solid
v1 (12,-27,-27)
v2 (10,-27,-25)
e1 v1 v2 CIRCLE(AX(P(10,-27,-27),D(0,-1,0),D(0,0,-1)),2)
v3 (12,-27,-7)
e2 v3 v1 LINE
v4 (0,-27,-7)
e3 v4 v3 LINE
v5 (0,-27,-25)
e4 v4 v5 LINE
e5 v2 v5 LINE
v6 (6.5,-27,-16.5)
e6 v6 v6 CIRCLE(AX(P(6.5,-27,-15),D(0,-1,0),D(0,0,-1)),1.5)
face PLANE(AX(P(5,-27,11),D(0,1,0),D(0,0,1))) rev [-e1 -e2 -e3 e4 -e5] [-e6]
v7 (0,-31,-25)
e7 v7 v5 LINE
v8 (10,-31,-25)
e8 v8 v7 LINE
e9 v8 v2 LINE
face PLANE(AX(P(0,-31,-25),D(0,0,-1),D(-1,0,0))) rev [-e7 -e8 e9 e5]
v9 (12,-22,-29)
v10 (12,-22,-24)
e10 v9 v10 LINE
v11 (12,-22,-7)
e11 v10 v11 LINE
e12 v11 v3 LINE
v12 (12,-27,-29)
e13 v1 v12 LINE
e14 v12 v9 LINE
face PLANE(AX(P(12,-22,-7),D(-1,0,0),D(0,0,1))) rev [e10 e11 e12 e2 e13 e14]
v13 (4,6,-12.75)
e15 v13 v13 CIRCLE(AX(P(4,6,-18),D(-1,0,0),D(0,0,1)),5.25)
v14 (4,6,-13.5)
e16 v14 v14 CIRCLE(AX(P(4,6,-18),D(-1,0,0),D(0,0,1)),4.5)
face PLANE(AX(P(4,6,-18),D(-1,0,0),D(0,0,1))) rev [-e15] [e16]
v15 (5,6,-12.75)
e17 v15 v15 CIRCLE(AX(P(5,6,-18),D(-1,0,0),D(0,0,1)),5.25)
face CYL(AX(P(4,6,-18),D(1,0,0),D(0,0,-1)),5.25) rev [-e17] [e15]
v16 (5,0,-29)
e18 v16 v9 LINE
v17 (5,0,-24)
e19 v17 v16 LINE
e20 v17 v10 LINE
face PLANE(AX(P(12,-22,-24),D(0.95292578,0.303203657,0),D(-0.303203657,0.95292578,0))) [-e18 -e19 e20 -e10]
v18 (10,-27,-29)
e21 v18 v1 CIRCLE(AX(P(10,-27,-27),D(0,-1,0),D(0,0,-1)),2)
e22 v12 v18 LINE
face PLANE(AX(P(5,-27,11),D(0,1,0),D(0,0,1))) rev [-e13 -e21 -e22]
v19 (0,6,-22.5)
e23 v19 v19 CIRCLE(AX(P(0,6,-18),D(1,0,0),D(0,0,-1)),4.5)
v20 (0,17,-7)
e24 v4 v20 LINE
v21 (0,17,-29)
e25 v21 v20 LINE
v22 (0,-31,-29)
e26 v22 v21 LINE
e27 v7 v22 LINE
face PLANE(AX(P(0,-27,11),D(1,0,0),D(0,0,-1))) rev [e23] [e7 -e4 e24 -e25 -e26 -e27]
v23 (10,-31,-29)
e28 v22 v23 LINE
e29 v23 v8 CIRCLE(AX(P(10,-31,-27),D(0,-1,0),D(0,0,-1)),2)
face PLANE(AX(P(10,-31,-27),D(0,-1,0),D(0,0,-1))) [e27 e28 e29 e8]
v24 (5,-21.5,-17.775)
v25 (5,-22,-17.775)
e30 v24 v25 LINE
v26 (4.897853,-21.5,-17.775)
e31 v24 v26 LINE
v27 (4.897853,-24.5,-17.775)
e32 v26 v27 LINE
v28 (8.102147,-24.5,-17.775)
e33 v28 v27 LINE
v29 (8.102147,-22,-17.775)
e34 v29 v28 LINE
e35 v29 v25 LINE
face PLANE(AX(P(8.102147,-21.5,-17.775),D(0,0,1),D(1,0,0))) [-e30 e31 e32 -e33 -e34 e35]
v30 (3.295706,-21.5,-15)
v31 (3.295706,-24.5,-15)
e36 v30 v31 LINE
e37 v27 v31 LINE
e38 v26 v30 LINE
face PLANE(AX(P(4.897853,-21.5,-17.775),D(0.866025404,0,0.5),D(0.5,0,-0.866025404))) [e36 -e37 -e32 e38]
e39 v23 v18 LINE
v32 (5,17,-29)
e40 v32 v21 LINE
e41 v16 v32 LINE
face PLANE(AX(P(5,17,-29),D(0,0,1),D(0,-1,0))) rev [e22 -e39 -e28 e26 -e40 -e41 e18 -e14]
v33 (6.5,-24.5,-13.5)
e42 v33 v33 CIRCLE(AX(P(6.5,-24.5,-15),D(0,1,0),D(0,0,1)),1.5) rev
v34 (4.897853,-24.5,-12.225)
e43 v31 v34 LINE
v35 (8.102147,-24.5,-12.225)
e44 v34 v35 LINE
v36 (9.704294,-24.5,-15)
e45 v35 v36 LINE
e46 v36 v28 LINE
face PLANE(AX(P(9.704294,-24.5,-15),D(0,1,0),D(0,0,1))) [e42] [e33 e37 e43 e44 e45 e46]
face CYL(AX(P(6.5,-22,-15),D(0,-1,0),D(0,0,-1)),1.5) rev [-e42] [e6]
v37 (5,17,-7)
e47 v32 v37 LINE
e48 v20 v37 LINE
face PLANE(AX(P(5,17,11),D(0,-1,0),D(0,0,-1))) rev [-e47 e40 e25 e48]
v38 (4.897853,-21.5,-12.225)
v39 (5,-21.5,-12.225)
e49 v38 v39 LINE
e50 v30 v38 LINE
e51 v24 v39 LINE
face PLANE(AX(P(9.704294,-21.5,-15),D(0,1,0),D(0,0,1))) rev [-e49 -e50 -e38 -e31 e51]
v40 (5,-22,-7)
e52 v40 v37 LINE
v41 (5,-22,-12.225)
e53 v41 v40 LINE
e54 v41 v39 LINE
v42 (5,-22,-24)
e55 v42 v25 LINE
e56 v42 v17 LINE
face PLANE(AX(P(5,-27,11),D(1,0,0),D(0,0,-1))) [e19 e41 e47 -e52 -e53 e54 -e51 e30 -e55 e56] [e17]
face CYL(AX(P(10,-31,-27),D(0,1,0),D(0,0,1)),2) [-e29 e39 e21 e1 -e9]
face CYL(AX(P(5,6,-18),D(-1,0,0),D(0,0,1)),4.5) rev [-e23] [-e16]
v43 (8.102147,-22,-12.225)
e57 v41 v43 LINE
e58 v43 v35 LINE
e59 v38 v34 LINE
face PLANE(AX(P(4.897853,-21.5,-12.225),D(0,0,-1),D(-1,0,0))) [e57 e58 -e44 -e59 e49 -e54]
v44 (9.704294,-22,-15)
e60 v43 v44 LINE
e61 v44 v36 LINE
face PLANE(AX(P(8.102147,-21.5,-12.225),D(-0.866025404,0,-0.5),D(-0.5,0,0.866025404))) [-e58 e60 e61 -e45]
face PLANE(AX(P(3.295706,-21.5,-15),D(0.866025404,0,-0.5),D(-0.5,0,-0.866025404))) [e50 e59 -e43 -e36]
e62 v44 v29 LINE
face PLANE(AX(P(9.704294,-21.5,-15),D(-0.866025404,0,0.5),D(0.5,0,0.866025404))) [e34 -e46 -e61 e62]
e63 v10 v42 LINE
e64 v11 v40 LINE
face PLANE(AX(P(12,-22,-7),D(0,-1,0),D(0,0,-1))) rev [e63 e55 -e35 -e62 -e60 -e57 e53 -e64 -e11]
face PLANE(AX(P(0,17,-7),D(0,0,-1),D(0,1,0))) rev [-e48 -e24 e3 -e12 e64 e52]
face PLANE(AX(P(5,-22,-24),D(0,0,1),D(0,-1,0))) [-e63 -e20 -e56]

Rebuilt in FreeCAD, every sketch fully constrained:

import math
import FreeCAD as App
import Part
import Sketcher

V = App.Vector
Q = App.Units.Quantity


def add_polygon(sketch, points):
    """Adds a closed chain of lines whose ends are joined by coincident constraints."""
    first, n = sketch.GeometryCount, len(points)
    for a, b in zip(points, points[1:] + points[:1]):
        sketch.addGeometry(Part.LineSegment(App.Vector(*a, 0), App.Vector(*b, 0)), False)
    for i in range(n):
        sketch.addConstraint(Sketcher.Constraint("Coincident", first + i, 2, first + (i + 1) % n, 1))

doc = App.newDocument("Part")
params = doc.addObject("Spreadsheet::Sheet", "Params")
for row, (alias, value) in enumerate([
    ("sketch1_diameter", "9 mm"),
    ("sketch1_width", "44 mm"),
    ("sketch1_height", "40 mm"),
    ("pad1_length", "5 mm"),
    ("sketch2_diameter", "10.5 mm"),
    ("pocket1_length", "1 mm"),
    ("sketch3_width", "44 mm"),
    ("sketch3_height", "18 mm"),
    ("sketch4_diameter", "9 mm"),
    ("pad2_length", "5 mm"),
    ("sketch5_width", "5 mm"),
    ("sketch5_height", "22 mm"),
    ("pad3_length", "7 mm"),
    ("sketch6_radius", "2 mm"),
    ("sketch6_width", "10 mm"),
    ("pad4_length", "4 mm"),
    ("sketch7_diameter", "3 mm"),
    ("pocket3_length", "5 mm"),
    ("pocket4_length", "0.5 mm"),
    ("pocket4_length2", "2.5 mm"),
    ("sketch9_width", "7 mm"),
    ("sketch9_height", "22 mm"),
    ("pad5_length", "5 mm"),
], start=1):
    params.set(f"A{row}", alias)
    params.set(f"B{row}", "=" + value)
    params.setAlias(f"B{row}", alias)

body = doc.addObject("PartDesign::Body", "Body")

# Sketch on YZ plane
sketch1 = body.newObject("Sketcher::SketchObject", "Sketch")
sketch1.AttachmentSupport = (doc.getObject("YZ_Plane"), [""])
sketch1.MapMode = "FlatFace"
add_polygon(sketch1, [(17, 11), (-27, 11), (-27, -29), (17, -29)])  # lines 0-3
sketch1.addGeometry(Part.Circle(V(-13.4, -11.5, 0), V(0, 0, 1), 4.5), False)  # 4
sketch1.addGeometry(Part.Circle(V(0, 0, 0), V(0, 0, 1), 4.5), False)  # 5
sketch1.addGeometry(Part.Circle(V(6, -18, 0), V(0, 0, 1), 4.5), False)  # 6
sketch1.addConstraint([
    Sketcher.Constraint("Horizontal", 0),
    Sketcher.Constraint("Vertical", 1),
    Sketcher.Constraint("Horizontal", 2),
    Sketcher.Constraint("Vertical", 3),
    Sketcher.Constraint("Coincident", 5, 3, -1, 1),
    Sketcher.Constraint("Equal", 4, 5),
    Sketcher.Constraint("Equal", 5, 6),
    Sketcher.Constraint("Diameter", 4, Q("9 mm")),
    Sketcher.Constraint("DistanceX", 0, 2, 0, 1, Q("44 mm")),
    Sketcher.Constraint("DistanceY", 1, 2, 1, 1, Q("40 mm")),
    Sketcher.Constraint("DistanceX", -1, 1, 6, 3, Q("6 mm")),
    Sketcher.Constraint("DistanceY", 6, 3, -1, 1, Q("18 mm")),
    Sketcher.Constraint("DistanceX", 0, 2, -1, 1, Q("27 mm")),
    Sketcher.Constraint("DistanceY", -1, 1, 0, 2, Q("11 mm")),
    Sketcher.Constraint("DistanceX", 4, 3, -1, 1, Q("13.351449 mm")),
    Sketcher.Constraint("DistanceY", 4, 3, -1, 1, Q("11.543886 mm")),
])
sketch1.setExpression("Constraints[11]", "Params.sketch1_diameter")
sketch1.setExpression("Constraints[12]", "Params.sketch1_width")
sketch1.setExpression("Constraints[13]", "Params.sketch1_height")
pad1 = body.newObject("PartDesign::Pad", "Pad")
pad1.Profile = sketch1
pad1.setExpression("Length", "Params.pad1_length")

# Sketch on YZ plane
sketch2 = body.newObject("Sketcher::SketchObject", "Sketch001")
sketch2.AttachmentSupport = (doc.getObject("YZ_Plane"), [""])
sketch2.MapMode = "FlatFace"
sketch2.AttachmentOffset = App.Placement(V(0, 0, 5), App.Rotation())
sketch2.addGeometry([
    Part.Circle(V(6, -18, 0), V(0, 0, 1), 5),
    Part.Circle(V(0, 0, 0), V(0, 0, 1), 5),
], False)
sketch2.addConstraint([
    Sketcher.Constraint("Coincident", 1, 3, -1, 1),
    Sketcher.Constraint("Equal", 0, 1),
    Sketcher.Constraint("Diameter", 0, Q("10.5 mm")),
    Sketcher.Constraint("DistanceX", -1, 1, 0, 3, Q("6 mm")),
    Sketcher.Constraint("DistanceY", 0, 3, -1, 1, Q("18 mm")),
])
sketch2.setExpression("Constraints[2]", "Params.sketch2_diameter")
pocket1 = body.newObject("PartDesign::Pocket", "Pocket")
pocket1.Profile = sketch2
pocket1.setExpression("Length", "Params.pocket1_length")

# Sketch on YZ plane
sketch3 = body.newObject("Sketcher::SketchObject", "Sketch002")
sketch3.AttachmentSupport = (doc.getObject("YZ_Plane"), [""])
sketch3.MapMode = "FlatFace"
sketch3.AttachmentOffset = App.Placement(V(0, 0, 5), App.Rotation())
add_polygon(sketch3, [(17, 11), (-27, 11), (-27, -7), (17, -7)])  # lines 0-3
sketch3.addConstraint([
    Sketcher.Constraint("Horizontal", 0),
    Sketcher.Constraint("Vertical", 1),
    Sketcher.Constraint("Horizontal", 2),
    Sketcher.Constraint("Vertical", 3),
    Sketcher.Constraint("DistanceX", 0, 2, 0, 1, Q("44 mm")),
    Sketcher.Constraint("DistanceY", 1, 2, 1, 1, Q("18 mm")),
    Sketcher.Constraint("DistanceX", 0, 2, -1, 1, Q("27 mm")),
    Sketcher.Constraint("DistanceY", -1, 1, 0, 2, Q("11 mm")),
])
sketch3.setExpression("Constraints[8]", "Params.sketch3_width")
sketch3.setExpression("Constraints[9]", "Params.sketch3_height")
pocket2 = body.newObject("PartDesign::Pocket", "Pocket001")
pocket2.Profile = sketch3
pocket2.Type = "ThroughAll"

# Sketch on YZ plane
sketch4 = body.newObject("Sketcher::SketchObject", "Sketch003")
sketch4.AttachmentSupport = (doc.getObject("YZ_Plane"), [""])
sketch4.MapMode = "FlatFace"
sketch4.AttachmentOffset = App.Placement(V(0, 0, 5), App.Rotation())
sketch4.addGeometry(Part.Circle(V(-13.4, -11.5, 0), V(0, 0, 1), 4.5), False)
sketch4.addConstraint([
    Sketcher.Constraint("Diameter", 0, Q("9 mm")),
    Sketcher.Constraint("DistanceX", 0, 3, -1, 1, Q("13.351449 mm")),
    Sketcher.Constraint("DistanceY", 0, 3, -1, 1, Q("11.543886 mm")),
])
sketch4.setExpression("Constraints[0]", "Params.sketch4_diameter")
pad2 = body.newObject("PartDesign::Pad", "Pad001")
pad2.Profile = sketch4
pad2.setExpression("Length", "Params.pad2_length")
pad2.Reversed = True

# Sketch on YZ plane
sketch5 = body.newObject("Sketcher::SketchObject", "Sketch004")
sketch5.AttachmentSupport = (doc.getObject("YZ_Plane"), [""])
sketch5.MapMode = "FlatFace"
sketch5.AttachmentOffset = App.Placement(V(0, 0, 5), App.Rotation())
add_polygon(sketch5, [(-22, -7), (-27, -7), (-27, -29), (-22, -29)])  # lines 0-3
sketch5.addConstraint([
    Sketcher.Constraint("Horizontal", 0),
    Sketcher.Constraint("Vertical", 1),
    Sketcher.Constraint("Horizontal", 2),
    Sketcher.Constraint("Vertical", 3),
    Sketcher.Constraint("DistanceX", 0, 2, 0, 1, Q("5 mm")),
    Sketcher.Constraint("DistanceY", 1, 2, 1, 1, Q("22 mm")),
    Sketcher.Constraint("DistanceX", 0, 2, -1, 1, Q("27 mm")),
    Sketcher.Constraint("DistanceY", 0, 2, -1, 1, Q("7 mm")),
])
sketch5.setExpression("Constraints[8]", "Params.sketch5_width")
sketch5.setExpression("Constraints[9]", "Params.sketch5_height")
pad3 = body.newObject("PartDesign::Pad", "Pad002")
pad3.Profile = sketch5
pad3.setExpression("Length", "Params.pad3_length")

# Sketch on XZ plane
sketch6 = body.newObject("Sketcher::SketchObject", "Sketch005")
sketch6.AttachmentSupport = (doc.getObject("XZ_Plane"), [""])
sketch6.MapMode = "FlatFace"
sketch6.AttachmentOffset = App.Placement(V(0, 0, 27), App.Rotation())
sketch6.addGeometry([
    Part.LineSegment(V(0, -29, 0), V(10, -29, 0)),
    Part.ArcOfCircle(Part.Circle(V(10, -27, 0), V(0, 0, 1), 2), math.radians(-90), math.radians(90)),
    Part.LineSegment(V(10, -25, 0), V(0, -25, 0)),
    Part.LineSegment(V(0, -25, 0), V(0, -29, 0)),
], False)
sketch6.addConstraint([
    Sketcher.Constraint("Tangent", 0, 2, 1, 1),
    Sketcher.Constraint("Tangent", 1, 2, 2, 1),
    Sketcher.Constraint("Coincident", 2, 2, 3, 1),
    Sketcher.Constraint("Coincident", 3, 2, 0, 1),
    Sketcher.Constraint("Horizontal", 0),
    Sketcher.Constraint("Horizontal", 2),
    Sketcher.Constraint("Vertical", 3),
    Sketcher.Constraint("PointOnObject", 2, 2, -2),
    Sketcher.Constraint("Radius", 1, Q("2 mm")),
    Sketcher.Constraint("DistanceX", 0, 1, 0, 2, Q("10 mm")),
    Sketcher.Constraint("DistanceY", 1, 3, -1, 1, Q("27 mm")),
])
sketch6.setExpression("Constraints[8]", "Params.sketch6_radius")
sketch6.setExpression("Constraints[9]", "Params.sketch6_width")
pad4 = body.newObject("PartDesign::Pad", "Pad003")
pad4.Profile = sketch6
pad4.setExpression("Length", "Params.pad4_length")

# Sketch on XZ plane
sketch7 = body.newObject("Sketcher::SketchObject", "Sketch006")
sketch7.AttachmentSupport = (doc.getObject("XZ_Plane"), [""])
sketch7.MapMode = "FlatFace"
sketch7.AttachmentOffset = App.Placement(V(0, 0, 27), App.Rotation())
sketch7.addGeometry(Part.Circle(V(6.5, -15, 0), V(0, 0, 1), 1.5), False)
sketch7.addConstraint([
    Sketcher.Constraint("Diameter", 0, Q("3 mm")),
    Sketcher.Constraint("DistanceY", 0, 3, -1, 1, Q("15 mm")),
    Sketcher.Constraint("DistanceX", -1, 1, 0, 3, Q("6.5 mm")),
])
sketch7.setExpression("Constraints[0]", "Params.sketch7_diameter")
pocket3 = body.newObject("PartDesign::Pocket", "Pocket002")
pocket3.Profile = sketch7
pocket3.setExpression("Length", "Params.pocket3_length")

# Sketch on XZ plane
sketch8 = body.newObject("Sketcher::SketchObject", "Sketch007")
sketch8.AttachmentSupport = (doc.getObject("XZ_Plane"), [""])
sketch8.MapMode = "FlatFace"
sketch8.AttachmentOffset = App.Placement(V(0, 0, 22), App.Rotation())
add_polygon(sketch8, [(9.7, -15), (8.1, -17.8), (4.9, -17.8), (3.3, -15), (4.9, -12.2), (8.1, -12.2)])  # lines 0-5
sketch8.addConstraint([
    Sketcher.Constraint("Horizontal", 1),
    Sketcher.Constraint("Horizontal", 4),
    Sketcher.Constraint("Parallel", 0, 3),
    Sketcher.Constraint("Parallel", 2, 5),
    Sketcher.Constraint("Horizontal", 2, 2, 5, 2),
    Sketcher.Constraint("Vertical", 1, 2, 3, 2),
    Sketcher.Constraint("Vertical", 0, 2, 4, 2),
    Sketcher.Constraint("Angle", 0, Q("-120 deg")),
    Sketcher.Constraint("DistanceY", 2, 2, -1, 1, Q("15 mm")),
    Sketcher.Constraint("DistanceY", 1, 2, 3, 2, Q("5.55 mm")),
    Sketcher.Constraint("DistanceX", 1, 2, 1, 1, Q("3.204294 mm")),
    Sketcher.Constraint("DistanceX", -1, 1, 0, 2, Q("8.102147 mm")),
])
pocket4 = body.newObject("PartDesign::Pocket", "Pocket003")
pocket4.Profile = sketch8
pocket4.Type = "TwoLengths"
pocket4.setExpression("Length", "Params.pocket4_length")
pocket4.setExpression("Length2", "Params.pocket4_length2")

# Sketch on XY plane
sketch9 = body.newObject("Sketcher::SketchObject", "Sketch008")
sketch9.AttachmentSupport = (doc.getObject("XY_Plane"), [""])
sketch9.MapMode = "FlatFace"
sketch9.AttachmentOffset = App.Placement(V(0, 0, -29), App.Rotation())
add_polygon(sketch9, [(12, -22), (5, -22), (5, 0)])  # lines 0-2
sketch9.addConstraint([
    Sketcher.Constraint("Horizontal", 0),
    Sketcher.Constraint("Vertical", 1),
    Sketcher.Constraint("PointOnObject", 1, 2, -1),
    Sketcher.Constraint("DistanceX", 0, 2, 0, 1, Q("7 mm")),
    Sketcher.Constraint("DistanceY", 1, 1, 1, 2, Q("22 mm")),
    Sketcher.Constraint("DistanceX", -1, 1, 0, 2, Q("5 mm")),
])
sketch9.setExpression("Constraints[6]", "Params.sketch9_width")
sketch9.setExpression("Constraints[7]", "Params.sketch9_height")
pad5 = body.newObject("PartDesign::Pad", "Pad004")
pad5.Profile = sketch9
pad5.setExpression("Length", "Params.pad5_length")

doc.recompute()
